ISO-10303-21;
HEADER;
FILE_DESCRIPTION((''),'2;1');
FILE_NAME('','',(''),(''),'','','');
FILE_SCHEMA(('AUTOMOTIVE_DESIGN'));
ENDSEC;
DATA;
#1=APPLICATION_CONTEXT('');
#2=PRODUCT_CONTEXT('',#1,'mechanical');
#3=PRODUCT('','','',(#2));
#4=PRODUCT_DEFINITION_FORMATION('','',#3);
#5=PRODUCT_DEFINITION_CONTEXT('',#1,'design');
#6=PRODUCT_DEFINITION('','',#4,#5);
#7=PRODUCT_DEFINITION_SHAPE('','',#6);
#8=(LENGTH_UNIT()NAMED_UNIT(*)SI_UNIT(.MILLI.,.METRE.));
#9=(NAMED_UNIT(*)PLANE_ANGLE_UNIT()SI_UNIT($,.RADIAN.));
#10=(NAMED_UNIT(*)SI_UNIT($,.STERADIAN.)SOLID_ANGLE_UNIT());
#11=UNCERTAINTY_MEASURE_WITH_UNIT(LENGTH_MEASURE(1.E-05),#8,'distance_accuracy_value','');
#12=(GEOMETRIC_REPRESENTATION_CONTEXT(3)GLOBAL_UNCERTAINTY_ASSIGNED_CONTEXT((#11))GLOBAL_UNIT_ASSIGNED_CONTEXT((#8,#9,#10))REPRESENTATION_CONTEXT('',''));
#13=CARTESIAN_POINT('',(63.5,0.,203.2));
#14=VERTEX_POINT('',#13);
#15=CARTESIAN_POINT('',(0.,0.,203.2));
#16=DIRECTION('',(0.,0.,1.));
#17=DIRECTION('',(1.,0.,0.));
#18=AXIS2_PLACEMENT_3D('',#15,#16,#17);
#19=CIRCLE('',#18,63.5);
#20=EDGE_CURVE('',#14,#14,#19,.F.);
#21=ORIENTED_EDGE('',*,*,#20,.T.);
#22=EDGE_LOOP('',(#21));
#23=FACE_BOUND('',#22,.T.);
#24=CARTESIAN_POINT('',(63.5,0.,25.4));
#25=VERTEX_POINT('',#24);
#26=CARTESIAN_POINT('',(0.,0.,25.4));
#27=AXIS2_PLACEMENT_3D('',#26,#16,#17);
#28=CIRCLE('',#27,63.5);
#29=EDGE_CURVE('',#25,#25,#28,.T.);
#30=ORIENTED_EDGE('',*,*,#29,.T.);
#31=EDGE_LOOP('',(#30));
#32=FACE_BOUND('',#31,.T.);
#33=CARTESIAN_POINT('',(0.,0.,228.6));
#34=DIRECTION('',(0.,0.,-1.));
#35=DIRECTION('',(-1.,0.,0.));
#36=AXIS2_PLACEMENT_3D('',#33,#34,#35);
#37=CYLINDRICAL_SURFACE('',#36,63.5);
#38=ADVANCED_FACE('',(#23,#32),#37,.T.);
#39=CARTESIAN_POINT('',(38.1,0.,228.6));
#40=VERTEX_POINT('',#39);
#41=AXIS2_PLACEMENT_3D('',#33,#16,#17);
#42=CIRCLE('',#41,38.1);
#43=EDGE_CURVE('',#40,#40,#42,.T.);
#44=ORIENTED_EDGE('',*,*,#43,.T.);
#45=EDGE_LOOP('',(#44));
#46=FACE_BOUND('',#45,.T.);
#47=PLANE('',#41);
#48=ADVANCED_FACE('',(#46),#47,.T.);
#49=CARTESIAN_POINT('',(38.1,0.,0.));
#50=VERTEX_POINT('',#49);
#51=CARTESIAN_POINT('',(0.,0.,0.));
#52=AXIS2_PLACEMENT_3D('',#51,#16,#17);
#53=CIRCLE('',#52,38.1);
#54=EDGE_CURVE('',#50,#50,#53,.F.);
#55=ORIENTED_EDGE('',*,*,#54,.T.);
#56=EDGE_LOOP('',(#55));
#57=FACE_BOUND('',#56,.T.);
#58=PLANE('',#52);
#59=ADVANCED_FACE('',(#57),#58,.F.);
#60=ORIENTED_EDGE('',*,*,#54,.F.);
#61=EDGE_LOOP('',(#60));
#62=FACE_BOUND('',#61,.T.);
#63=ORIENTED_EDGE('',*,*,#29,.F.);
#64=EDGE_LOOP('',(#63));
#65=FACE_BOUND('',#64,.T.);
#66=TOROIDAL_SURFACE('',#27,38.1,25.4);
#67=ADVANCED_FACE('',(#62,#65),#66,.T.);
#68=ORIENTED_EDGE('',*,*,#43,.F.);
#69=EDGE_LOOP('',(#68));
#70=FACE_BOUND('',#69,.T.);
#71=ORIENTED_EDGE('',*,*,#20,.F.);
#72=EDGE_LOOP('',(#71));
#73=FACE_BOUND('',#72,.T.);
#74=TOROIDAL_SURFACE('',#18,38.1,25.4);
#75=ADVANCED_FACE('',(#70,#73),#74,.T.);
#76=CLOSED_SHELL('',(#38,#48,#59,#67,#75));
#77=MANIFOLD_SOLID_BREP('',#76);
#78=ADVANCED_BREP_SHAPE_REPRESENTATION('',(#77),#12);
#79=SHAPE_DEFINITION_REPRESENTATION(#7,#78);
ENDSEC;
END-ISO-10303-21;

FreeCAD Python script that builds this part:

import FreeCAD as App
import Part
import Sketcher
from FreeCAD import Vector
Q = App.Units.Quantity


def edges_at(feature, points):
    """Names of the edges that pass closest to the given points."""
    edges = feature.Shape.Edges
    near = lambda p: min(range(len(edges)), key=lambda i: edges[i].distToShape(Part.Vertex(*p))[0])
    return sorted({f"Edge{near(p) + 1}" for p in points})

doc = App.newDocument("Part")
body = doc.addObject("PartDesign::Body", "Body")

sketch1 = body.newObject("Sketcher::SketchObject", "Sketch")
sketch1.AttachmentSupport = (doc.getObject("XY_Plane"), [""])
sketch1.MapMode = "FlatFace"
sketch1.addGeometry(Part.Circle(Vector(0, 0, 0), Vector(0, 0, 1), 64), False)
sketch1.addConstraint([
    Sketcher.Constraint("Coincident", 0, 3, -1, 1),
    Sketcher.Constraint("Diameter", 0, Q("5 in")),
])
pad1 = body.newObject("PartDesign::Pad", "Pad")
pad1.Profile = sketch1
pad1.Length = Q("9 in")
doc.recompute()

fillet = body.newObject("PartDesign::Fillet", "Fillet")
fillet.Base = (pad1, edges_at(pad1, [(-63.5, 0, 0), (-63.5, 0, 228.6)]))
fillet.Radius = Q("1 in")

doc.recompute()
